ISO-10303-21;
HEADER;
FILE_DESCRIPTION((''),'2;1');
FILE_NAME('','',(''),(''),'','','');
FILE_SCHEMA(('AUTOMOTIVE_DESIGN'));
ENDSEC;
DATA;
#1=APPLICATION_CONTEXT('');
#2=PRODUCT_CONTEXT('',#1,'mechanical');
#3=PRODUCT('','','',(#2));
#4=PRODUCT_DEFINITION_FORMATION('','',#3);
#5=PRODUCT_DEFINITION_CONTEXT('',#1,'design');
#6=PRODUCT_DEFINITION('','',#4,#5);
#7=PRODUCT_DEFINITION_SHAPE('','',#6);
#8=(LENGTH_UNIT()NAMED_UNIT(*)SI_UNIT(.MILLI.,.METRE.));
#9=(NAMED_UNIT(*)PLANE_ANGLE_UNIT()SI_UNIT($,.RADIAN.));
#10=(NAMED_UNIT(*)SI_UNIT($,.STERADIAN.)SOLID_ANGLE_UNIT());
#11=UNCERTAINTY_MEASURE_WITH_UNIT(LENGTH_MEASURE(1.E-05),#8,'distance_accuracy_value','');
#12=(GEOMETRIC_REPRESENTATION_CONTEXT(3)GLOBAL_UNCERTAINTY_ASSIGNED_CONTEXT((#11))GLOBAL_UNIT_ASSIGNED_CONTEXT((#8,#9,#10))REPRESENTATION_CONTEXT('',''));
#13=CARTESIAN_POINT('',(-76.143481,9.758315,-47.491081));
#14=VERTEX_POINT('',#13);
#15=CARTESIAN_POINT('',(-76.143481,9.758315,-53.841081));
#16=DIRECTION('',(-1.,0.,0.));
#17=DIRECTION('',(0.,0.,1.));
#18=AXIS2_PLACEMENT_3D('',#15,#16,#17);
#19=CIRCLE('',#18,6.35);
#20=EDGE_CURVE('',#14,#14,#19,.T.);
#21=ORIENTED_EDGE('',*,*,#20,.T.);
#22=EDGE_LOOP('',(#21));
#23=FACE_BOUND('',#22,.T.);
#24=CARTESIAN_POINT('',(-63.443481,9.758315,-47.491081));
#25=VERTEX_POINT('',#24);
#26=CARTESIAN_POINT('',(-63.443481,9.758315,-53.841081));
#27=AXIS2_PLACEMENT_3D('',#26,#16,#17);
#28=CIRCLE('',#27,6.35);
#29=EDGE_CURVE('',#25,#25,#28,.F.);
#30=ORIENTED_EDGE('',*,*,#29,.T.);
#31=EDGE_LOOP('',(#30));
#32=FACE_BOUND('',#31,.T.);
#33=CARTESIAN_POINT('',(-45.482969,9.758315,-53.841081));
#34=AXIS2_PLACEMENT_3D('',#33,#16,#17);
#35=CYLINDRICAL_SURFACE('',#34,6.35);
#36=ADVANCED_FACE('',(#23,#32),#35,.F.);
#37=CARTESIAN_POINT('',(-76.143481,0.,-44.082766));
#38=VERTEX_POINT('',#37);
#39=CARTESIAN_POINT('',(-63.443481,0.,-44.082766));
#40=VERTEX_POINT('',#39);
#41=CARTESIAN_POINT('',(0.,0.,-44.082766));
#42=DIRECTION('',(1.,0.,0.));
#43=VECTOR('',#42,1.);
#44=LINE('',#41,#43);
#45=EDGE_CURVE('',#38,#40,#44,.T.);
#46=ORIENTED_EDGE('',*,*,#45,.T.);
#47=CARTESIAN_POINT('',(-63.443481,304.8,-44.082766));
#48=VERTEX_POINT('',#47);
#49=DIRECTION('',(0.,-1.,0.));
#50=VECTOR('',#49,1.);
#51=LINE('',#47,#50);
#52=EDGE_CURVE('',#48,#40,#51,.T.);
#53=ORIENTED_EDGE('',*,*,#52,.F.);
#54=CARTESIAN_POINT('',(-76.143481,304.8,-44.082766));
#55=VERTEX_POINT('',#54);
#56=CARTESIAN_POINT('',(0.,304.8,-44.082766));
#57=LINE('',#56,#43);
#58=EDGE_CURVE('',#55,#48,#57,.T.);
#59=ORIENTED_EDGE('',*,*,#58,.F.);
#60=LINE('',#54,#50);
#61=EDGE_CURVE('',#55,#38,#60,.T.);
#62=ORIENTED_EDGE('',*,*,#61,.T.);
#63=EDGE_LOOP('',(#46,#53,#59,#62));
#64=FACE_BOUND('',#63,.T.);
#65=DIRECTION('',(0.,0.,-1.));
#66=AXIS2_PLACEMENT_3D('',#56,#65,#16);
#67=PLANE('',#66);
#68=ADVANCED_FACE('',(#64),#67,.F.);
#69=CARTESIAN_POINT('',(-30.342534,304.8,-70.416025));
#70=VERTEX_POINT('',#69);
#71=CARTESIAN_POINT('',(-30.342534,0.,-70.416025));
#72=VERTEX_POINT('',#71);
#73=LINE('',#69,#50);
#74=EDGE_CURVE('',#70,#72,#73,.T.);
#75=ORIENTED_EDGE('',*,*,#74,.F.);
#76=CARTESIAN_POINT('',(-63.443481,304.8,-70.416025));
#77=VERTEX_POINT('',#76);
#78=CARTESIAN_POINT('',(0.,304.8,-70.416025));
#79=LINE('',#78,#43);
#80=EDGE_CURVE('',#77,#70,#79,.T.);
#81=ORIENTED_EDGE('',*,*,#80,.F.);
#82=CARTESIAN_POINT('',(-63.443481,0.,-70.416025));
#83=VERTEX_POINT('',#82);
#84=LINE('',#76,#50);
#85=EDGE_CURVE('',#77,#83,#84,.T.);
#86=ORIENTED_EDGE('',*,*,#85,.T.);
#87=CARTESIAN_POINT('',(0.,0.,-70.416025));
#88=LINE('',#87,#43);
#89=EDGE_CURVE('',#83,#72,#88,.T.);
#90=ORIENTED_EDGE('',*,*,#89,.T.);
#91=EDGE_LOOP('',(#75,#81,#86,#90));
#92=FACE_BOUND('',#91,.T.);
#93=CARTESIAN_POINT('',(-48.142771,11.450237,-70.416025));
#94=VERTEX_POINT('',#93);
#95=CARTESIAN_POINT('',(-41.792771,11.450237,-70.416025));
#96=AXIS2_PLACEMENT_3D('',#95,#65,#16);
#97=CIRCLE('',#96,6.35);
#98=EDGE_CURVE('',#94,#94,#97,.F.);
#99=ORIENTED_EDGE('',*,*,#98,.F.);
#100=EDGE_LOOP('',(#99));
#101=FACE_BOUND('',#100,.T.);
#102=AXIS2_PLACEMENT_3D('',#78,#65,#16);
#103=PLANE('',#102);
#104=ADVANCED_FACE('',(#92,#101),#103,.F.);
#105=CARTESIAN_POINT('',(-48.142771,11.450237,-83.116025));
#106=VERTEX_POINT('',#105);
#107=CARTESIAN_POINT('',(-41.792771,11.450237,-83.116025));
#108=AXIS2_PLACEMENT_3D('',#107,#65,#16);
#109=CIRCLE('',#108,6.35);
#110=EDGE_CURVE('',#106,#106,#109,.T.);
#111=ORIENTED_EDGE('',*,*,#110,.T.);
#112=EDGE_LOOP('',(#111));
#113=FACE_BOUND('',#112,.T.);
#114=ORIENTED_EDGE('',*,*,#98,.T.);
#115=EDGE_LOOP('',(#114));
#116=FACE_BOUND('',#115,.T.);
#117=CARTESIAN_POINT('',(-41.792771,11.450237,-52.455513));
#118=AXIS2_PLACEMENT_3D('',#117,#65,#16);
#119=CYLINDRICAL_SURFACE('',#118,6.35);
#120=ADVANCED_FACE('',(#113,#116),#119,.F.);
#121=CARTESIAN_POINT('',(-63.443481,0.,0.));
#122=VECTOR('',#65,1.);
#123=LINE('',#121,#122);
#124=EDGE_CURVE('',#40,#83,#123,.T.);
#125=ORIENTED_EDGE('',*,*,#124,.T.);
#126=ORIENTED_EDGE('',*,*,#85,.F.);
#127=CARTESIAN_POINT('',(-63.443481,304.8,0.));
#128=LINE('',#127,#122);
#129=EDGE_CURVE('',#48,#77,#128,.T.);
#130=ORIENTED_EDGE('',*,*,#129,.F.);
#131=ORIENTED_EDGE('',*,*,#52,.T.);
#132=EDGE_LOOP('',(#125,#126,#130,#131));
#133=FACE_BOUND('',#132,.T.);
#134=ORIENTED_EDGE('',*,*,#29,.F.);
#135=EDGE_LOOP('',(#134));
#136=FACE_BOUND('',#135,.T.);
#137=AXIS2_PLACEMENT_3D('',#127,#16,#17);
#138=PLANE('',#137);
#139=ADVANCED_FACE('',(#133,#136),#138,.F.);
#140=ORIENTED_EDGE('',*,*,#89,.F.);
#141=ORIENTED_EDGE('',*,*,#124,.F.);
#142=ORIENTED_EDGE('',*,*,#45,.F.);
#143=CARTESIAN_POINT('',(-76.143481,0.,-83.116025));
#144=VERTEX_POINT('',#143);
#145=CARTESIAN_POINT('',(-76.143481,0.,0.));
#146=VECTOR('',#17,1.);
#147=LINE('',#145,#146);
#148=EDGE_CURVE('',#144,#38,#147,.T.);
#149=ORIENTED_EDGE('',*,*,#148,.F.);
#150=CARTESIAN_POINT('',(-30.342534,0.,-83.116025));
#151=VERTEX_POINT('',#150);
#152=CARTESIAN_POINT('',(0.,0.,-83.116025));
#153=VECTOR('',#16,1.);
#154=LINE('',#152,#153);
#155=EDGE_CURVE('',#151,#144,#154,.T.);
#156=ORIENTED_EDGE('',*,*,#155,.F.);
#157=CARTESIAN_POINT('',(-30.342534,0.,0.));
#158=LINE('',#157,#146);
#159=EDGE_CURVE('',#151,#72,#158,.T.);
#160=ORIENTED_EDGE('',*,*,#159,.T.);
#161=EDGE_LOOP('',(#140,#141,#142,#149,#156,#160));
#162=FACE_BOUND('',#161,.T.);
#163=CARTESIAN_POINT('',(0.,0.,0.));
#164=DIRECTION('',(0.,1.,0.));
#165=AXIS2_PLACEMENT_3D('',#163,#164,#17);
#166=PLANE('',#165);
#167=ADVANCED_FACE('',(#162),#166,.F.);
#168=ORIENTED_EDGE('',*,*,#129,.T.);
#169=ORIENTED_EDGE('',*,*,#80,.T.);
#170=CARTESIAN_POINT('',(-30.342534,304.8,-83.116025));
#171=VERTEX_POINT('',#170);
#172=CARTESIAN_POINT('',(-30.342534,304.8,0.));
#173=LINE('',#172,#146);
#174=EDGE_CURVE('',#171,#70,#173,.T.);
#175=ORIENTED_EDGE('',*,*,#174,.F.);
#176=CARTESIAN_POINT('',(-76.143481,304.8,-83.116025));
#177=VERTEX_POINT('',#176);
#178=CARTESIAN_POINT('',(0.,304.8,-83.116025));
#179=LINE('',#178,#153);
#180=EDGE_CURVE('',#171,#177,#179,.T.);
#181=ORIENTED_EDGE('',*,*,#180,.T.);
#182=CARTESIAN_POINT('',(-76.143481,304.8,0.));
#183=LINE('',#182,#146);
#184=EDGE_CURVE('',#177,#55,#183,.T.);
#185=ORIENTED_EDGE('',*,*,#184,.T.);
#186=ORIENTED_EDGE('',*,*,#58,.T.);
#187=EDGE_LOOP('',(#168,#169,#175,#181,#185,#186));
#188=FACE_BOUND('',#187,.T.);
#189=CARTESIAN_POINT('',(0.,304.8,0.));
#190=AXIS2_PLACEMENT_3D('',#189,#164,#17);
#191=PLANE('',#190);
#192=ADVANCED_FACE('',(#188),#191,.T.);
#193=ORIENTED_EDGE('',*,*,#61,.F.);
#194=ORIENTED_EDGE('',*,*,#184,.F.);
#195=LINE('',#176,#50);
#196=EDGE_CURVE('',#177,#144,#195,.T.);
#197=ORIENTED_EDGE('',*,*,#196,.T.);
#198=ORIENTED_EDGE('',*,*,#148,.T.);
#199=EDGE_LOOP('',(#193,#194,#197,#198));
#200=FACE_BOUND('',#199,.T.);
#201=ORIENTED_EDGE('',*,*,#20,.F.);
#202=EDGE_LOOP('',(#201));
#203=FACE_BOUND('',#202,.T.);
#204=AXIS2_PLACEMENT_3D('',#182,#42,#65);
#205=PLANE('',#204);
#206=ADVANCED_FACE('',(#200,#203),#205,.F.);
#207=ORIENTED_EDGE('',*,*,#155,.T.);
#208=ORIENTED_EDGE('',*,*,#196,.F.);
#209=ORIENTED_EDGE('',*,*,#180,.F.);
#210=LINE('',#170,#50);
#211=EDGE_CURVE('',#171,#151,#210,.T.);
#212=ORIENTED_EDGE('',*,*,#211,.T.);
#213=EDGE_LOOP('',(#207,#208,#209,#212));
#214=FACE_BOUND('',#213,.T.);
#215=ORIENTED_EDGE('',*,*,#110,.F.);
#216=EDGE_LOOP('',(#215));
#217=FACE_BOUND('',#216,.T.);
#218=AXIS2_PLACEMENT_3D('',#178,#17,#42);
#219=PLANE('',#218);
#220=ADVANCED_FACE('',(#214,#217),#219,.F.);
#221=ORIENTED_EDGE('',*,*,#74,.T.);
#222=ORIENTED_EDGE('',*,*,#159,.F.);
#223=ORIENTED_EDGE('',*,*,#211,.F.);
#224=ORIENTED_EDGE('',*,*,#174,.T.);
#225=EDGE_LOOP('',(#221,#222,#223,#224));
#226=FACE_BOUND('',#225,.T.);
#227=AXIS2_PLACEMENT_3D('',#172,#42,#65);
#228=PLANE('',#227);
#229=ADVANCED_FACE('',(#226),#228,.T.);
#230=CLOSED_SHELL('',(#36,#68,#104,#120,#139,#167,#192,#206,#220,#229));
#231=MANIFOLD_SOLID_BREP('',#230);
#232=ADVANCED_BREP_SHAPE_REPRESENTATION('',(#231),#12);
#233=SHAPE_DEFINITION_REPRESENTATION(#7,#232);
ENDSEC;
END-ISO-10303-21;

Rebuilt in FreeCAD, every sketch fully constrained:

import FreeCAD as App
import Part
import Sketcher

V = App.Vector
Q = App.Units.Quantity

doc = App.newDocument("Part")
body = doc.addObject("PartDesign::Body", "Body")

sketch1 = doc.addObject("Sketcher::SketchObject", "Sketch")
body.addObject(sketch1)
sketch1.AttachmentSupport = (doc.XZ_Plane, [""])
sketch1.MapMode = "FlatFace"
sketch1.addGeometry(Part.LineSegment(V(-76.143481, -44.082766, 0), V(-63.443481, -44.082766, 0)), False)
sketch1.addGeometry(Part.LineSegment(V(-63.443481, -44.082766, 0), V(-63.443481, -70.416025, 0)), False)
sketch1.addGeometry(Part.LineSegment(V(-63.443481, -70.416025, 0), V(-30.342534, -70.416025, 0)), False)
sketch1.addGeometry(Part.LineSegment(V(-30.342534, -70.416025, 0), V(-30.342534, -83.116025, 0)), False)
sketch1.addGeometry(Part.LineSegment(V(-30.342534, -83.116025, 0), V(-76.143481, -83.116025, 0)), False)
sketch1.addGeometry(Part.LineSegment(V(-76.143481, -83.116025, 0), V(-76.143481, -44.082766, 0)), False)
sketch1.addConstraint(Sketcher.Constraint("Coincident", 0, 2, 1, 1))
sketch1.addConstraint(Sketcher.Constraint("Coincident", 1, 2, 2, 1))
sketch1.addConstraint(Sketcher.Constraint("Coincident", 2, 2, 3, 1))
sketch1.addConstraint(Sketcher.Constraint("Coincident", 3, 2, 4, 1))
sketch1.addConstraint(Sketcher.Constraint("Coincident", 4, 2, 5, 1))
sketch1.addConstraint(Sketcher.Constraint("Coincident", 5, 2, 0, 1))
sketch1.addConstraint(Sketcher.Constraint("Horizontal", 0))
sketch1.addConstraint(Sketcher.Constraint("Vertical", 1))
sketch1.addConstraint(Sketcher.Constraint("Horizontal", 2))
sketch1.addConstraint(Sketcher.Constraint("Vertical", 3))
sketch1.addConstraint(Sketcher.Constraint("Horizontal", 4))
sketch1.addConstraint(Sketcher.Constraint("Vertical", 5))
sketch1.addConstraint(Sketcher.Constraint("Equal", 0, 3))
sketch1.addConstraint(Sketcher.Constraint("DistanceX", 0, 1, 0, 2, Q("0.5 in")))
sketch1.addConstraint(Sketcher.Constraint("DistanceY", 1, 2, 1, 1, 26.333259))
sketch1.addConstraint(Sketcher.Constraint("DistanceX", 2, 1, 2, 2, 33.100947))
sketch1.addConstraint(Sketcher.Constraint("DistanceX", 0, 2, -1, 1, 63.443481))
sketch1.addConstraint(Sketcher.Constraint("DistanceY", 0, 2, -1, 1, 44.082766))
pad1 = doc.addObject("PartDesign::Pad", "Pad")
body.addObject(pad1)
pad1.Profile = sketch1
pad1.Length = Q("12 in")
pad1.Reversed = True

sketch2 = doc.addObject("Sketcher::SketchObject", "Sketch001")
body.addObject(sketch2)
sketch2.AttachmentSupport = (doc.XY_Plane, [""])
sketch2.MapMode = "FlatFace"
sketch2.AttachmentOffset = App.Placement(V(0, 0, -83.116025), App.Rotation())
sketch2.addGeometry(Part.Circle(V(-41.792771, 11.450237, 0), V(0, 0, 1), 6.35), False)
sketch2.addConstraint(Sketcher.Constraint("Diameter", 0, Q("0.5 in")))
sketch2.addConstraint(Sketcher.Constraint("DistanceX", 0, 3, -1, 1, 41.792771))
sketch2.addConstraint(Sketcher.Constraint("DistanceY", -1, 1, 0, 3, 11.450237))
pocket1 = doc.addObject("PartDesign::Pocket", "Pocket")
body.addObject(pocket1)
pocket1.Profile = sketch2
pocket1.Length = Q("0.5 in")
pocket1.Reversed = True

sketch3 = doc.addObject("Sketcher::SketchObject", "Sketch002")
body.addObject(sketch3)
sketch3.AttachmentSupport = (doc.YZ_Plane, [""])
sketch3.MapMode = "FlatFace"
sketch3.AttachmentOffset = App.Placement(V(0, 0, -76.143481), App.Rotation())
sketch3.addGeometry(Part.Circle(V(9.758315, -53.841081, 0), V(0, 0, 1), 6.35), False)
sketch3.addConstraint(Sketcher.Constraint("Diameter", 0, Q("0.5 in")))
sketch3.addConstraint(Sketcher.Constraint("DistanceY", 0, 3, -1, 1, 53.841081))
sketch3.addConstraint(Sketcher.Constraint("DistanceX", -1, 1, 0, 3, 9.758315))
pocket2 = doc.addObject("PartDesign::Pocket", "Pocket001")
body.addObject(pocket2)
pocket2.Profile = sketch3
pocket2.Length = Q("0.5 in")
pocket2.Reversed = True

doc.recompute()
